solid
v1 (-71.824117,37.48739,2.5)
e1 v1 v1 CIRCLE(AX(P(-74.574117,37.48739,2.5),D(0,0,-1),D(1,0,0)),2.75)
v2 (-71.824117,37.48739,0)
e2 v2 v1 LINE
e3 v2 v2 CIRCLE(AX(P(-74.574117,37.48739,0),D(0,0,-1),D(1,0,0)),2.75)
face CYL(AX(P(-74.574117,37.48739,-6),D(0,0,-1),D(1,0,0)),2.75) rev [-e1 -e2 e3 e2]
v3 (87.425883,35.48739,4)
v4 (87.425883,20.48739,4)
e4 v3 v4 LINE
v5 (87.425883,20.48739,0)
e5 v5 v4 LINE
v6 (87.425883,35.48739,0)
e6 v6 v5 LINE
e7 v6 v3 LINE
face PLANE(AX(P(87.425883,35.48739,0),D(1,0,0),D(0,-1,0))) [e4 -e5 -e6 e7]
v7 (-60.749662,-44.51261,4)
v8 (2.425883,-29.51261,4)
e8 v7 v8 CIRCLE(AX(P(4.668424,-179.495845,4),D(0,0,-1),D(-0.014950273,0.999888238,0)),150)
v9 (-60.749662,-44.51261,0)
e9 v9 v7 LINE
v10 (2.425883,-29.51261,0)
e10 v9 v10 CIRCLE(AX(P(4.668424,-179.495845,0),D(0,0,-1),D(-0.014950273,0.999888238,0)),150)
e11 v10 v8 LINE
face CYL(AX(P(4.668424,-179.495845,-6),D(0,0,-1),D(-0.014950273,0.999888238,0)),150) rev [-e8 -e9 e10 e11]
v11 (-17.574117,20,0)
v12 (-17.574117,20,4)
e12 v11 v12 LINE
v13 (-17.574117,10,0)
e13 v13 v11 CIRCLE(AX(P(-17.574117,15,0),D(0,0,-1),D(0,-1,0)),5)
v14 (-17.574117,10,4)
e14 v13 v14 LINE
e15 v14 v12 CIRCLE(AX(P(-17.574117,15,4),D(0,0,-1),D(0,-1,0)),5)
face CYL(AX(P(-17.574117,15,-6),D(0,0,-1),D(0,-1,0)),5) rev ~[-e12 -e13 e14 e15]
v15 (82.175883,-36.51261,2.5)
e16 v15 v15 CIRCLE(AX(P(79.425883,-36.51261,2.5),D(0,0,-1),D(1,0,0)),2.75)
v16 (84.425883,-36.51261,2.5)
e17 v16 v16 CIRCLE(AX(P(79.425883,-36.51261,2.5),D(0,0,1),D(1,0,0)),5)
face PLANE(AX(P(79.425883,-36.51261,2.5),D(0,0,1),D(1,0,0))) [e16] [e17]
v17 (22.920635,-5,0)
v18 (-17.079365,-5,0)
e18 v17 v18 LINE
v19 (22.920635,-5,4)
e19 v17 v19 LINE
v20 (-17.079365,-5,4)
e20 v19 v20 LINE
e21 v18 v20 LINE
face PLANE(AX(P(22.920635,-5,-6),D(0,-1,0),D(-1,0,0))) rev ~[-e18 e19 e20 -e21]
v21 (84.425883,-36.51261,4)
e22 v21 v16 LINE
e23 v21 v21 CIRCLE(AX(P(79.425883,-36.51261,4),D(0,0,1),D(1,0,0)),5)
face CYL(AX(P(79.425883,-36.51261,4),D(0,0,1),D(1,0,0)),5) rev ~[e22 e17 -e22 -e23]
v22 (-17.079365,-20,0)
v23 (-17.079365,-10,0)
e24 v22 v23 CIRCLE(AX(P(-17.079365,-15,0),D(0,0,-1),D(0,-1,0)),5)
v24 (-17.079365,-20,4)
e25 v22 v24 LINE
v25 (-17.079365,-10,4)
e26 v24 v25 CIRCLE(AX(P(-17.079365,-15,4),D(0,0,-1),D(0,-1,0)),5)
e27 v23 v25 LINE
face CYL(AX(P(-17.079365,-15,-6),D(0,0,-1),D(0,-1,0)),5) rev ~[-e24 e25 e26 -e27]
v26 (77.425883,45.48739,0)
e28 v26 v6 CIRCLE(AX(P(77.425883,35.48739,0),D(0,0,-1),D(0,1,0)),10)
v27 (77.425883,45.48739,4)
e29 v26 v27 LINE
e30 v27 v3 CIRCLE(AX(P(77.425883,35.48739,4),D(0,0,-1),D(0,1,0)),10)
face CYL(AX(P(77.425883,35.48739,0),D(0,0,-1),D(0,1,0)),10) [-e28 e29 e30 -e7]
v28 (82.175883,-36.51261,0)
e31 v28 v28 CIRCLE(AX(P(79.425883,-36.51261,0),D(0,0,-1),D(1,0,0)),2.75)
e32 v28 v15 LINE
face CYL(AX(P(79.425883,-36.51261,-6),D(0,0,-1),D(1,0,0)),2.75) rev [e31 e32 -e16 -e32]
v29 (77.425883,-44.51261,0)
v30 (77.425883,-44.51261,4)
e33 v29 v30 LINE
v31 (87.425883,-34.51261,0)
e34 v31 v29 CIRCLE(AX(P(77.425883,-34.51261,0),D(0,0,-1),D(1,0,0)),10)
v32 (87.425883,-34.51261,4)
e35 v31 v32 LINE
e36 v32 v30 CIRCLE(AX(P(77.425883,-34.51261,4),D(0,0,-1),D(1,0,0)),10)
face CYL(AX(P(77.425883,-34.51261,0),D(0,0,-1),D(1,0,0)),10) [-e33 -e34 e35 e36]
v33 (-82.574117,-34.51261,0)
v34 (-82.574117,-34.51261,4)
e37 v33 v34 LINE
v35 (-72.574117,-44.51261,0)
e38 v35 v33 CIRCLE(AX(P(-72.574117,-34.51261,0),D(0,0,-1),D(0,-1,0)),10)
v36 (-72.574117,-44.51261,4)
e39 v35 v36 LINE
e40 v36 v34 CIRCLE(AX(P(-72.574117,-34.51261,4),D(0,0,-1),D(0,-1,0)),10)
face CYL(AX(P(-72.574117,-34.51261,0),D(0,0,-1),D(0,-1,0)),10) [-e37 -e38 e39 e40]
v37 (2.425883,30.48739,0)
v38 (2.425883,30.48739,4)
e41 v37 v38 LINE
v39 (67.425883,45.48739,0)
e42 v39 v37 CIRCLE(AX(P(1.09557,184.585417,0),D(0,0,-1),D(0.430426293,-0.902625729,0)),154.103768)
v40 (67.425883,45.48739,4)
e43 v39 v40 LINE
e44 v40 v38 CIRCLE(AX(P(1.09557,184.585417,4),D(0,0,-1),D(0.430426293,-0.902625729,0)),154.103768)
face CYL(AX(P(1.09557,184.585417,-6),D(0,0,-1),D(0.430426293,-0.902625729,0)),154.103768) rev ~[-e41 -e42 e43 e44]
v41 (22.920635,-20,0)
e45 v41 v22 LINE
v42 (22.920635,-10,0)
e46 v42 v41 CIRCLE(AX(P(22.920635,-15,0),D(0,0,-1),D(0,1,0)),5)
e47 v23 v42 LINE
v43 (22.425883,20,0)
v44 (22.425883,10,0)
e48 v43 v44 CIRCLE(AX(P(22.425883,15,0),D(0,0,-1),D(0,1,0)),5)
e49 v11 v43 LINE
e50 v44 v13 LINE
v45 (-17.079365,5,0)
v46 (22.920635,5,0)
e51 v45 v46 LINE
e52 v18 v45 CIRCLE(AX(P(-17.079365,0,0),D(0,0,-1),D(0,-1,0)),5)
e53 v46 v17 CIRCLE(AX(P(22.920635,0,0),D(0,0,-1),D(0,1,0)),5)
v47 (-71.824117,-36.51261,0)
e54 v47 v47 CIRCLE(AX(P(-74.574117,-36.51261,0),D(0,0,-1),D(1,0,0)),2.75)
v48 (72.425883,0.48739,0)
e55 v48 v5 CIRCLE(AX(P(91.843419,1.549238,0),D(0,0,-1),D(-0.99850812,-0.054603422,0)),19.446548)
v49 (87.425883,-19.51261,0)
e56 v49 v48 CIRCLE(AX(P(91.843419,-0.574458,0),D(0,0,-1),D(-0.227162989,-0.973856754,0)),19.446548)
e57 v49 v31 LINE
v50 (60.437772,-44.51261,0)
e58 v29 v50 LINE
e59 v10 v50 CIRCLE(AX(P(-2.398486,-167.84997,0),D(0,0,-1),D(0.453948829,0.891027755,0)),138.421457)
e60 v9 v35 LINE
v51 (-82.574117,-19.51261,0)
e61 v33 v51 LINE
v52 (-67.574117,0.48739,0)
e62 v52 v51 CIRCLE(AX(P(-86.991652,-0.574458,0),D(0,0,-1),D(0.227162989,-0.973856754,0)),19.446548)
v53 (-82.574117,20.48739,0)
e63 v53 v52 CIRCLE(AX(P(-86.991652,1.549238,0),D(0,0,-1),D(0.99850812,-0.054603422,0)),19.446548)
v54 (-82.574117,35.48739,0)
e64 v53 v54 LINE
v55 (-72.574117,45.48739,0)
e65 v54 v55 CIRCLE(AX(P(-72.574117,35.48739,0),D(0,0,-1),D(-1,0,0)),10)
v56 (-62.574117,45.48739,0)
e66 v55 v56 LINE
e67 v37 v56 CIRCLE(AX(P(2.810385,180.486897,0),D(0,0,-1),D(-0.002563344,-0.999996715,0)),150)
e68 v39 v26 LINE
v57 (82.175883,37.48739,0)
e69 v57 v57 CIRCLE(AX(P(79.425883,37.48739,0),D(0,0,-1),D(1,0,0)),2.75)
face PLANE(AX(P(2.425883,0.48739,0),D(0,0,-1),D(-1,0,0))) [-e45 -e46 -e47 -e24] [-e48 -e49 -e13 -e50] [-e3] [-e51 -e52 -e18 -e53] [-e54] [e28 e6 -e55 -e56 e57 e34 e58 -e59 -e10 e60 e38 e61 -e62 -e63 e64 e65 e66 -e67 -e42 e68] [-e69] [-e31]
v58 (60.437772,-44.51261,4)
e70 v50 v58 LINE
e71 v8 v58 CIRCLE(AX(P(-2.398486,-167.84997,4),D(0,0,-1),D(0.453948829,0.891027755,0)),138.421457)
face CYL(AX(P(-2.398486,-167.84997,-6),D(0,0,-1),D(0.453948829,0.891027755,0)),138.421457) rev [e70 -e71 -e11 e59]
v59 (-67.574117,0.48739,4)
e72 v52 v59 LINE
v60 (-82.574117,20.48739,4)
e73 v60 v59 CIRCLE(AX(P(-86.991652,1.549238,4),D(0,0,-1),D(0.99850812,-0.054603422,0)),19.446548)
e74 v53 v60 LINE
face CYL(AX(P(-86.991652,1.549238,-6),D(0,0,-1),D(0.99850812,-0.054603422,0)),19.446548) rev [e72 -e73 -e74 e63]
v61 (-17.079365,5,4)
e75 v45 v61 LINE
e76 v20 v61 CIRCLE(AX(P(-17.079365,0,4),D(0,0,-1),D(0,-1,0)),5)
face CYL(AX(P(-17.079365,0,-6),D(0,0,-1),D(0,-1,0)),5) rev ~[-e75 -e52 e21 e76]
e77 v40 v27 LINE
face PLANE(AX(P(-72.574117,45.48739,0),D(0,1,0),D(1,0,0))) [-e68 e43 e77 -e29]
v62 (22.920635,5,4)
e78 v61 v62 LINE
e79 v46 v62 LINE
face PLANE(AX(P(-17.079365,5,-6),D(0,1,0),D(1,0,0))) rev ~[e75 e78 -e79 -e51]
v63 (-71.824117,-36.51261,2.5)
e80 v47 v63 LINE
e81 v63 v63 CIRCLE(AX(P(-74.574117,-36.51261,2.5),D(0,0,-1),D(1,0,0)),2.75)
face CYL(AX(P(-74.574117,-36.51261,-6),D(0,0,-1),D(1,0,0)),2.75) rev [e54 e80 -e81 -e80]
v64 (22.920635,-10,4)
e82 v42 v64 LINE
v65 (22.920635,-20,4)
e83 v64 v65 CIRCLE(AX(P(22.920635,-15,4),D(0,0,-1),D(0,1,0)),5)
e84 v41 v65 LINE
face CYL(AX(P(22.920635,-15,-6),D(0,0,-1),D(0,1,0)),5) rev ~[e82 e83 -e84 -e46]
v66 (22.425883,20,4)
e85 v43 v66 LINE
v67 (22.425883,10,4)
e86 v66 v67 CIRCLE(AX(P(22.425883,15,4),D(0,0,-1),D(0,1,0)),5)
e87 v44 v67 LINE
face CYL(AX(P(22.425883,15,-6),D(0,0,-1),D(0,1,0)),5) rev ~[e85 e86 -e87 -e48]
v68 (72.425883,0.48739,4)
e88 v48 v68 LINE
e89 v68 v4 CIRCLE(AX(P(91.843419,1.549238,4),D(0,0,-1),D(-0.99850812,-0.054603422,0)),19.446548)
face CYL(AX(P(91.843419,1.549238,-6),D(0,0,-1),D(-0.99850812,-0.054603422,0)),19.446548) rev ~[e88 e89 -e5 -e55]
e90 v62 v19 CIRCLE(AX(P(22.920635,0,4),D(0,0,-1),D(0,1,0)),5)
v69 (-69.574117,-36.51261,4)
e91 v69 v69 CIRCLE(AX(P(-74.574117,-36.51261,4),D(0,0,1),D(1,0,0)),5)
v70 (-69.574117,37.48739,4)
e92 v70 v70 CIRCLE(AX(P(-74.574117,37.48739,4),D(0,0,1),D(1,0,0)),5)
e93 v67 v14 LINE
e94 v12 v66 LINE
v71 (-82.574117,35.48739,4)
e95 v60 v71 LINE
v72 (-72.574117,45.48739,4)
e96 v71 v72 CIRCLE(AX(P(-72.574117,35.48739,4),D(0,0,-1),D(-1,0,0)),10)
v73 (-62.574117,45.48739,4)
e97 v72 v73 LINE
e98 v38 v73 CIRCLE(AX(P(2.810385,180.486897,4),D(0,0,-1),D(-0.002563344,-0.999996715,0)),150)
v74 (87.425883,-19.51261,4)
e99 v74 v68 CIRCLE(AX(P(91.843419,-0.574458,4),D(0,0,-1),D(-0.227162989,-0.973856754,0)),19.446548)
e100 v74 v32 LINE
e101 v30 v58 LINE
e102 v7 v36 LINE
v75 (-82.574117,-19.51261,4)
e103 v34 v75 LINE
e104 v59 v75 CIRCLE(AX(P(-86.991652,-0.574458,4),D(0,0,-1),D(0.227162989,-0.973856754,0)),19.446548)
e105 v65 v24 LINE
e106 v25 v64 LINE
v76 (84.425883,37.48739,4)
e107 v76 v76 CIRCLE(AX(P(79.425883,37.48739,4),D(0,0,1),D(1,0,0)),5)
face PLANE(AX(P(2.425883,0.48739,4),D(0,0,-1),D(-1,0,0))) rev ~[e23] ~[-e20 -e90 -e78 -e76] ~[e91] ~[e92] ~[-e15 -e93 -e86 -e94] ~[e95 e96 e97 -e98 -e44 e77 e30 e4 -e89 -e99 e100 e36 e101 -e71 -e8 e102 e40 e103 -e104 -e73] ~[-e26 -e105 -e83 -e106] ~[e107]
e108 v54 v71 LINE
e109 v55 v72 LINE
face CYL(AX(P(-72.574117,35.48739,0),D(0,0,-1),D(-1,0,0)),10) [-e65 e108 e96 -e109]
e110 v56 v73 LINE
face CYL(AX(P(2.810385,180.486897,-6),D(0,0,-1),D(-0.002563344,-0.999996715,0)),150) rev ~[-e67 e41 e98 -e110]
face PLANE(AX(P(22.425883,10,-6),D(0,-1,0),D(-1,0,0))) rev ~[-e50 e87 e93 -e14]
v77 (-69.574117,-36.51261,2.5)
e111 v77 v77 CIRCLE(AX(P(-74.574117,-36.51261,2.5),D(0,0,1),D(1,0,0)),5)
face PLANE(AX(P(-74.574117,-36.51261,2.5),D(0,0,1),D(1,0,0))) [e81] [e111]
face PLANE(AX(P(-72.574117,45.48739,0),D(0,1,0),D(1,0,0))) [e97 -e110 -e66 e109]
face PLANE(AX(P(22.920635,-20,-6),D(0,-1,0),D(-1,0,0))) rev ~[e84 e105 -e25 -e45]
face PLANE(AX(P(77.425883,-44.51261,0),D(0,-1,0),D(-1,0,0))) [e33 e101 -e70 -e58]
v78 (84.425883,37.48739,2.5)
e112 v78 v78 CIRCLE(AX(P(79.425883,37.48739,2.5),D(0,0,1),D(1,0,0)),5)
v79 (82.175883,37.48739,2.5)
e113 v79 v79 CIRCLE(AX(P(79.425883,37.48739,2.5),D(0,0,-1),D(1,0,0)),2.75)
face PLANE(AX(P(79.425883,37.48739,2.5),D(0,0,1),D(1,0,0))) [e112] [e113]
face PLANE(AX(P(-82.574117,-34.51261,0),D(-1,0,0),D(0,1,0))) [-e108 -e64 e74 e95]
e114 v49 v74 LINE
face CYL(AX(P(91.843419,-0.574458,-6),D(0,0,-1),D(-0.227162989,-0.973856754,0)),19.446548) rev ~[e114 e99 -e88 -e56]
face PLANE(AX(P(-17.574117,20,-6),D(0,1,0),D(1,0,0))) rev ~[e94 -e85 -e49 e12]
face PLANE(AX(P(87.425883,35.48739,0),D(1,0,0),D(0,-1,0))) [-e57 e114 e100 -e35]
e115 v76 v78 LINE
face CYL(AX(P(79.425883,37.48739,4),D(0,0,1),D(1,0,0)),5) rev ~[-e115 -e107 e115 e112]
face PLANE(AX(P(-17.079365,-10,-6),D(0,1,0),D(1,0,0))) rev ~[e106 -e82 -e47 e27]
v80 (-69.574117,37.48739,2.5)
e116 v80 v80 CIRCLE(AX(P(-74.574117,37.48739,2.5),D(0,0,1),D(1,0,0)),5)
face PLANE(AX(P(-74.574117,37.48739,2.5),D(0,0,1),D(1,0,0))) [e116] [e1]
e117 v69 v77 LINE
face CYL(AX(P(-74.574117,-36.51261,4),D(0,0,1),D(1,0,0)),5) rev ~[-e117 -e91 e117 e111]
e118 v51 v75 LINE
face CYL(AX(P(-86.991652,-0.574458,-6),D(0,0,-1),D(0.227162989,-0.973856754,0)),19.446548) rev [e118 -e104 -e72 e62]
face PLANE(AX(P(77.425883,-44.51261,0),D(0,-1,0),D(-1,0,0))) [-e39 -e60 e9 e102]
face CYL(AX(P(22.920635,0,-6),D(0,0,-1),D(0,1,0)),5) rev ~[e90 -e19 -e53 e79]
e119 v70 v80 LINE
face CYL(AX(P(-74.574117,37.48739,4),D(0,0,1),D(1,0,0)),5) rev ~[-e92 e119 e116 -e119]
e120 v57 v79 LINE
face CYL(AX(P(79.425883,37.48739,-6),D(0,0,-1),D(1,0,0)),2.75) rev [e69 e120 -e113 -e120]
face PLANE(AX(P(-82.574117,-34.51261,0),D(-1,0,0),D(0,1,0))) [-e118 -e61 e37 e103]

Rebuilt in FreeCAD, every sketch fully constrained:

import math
import FreeCAD as App
import Part
import Sketcher
from FreeCAD import Vector

doc = App.newDocument("Part")
body = doc.addObject("PartDesign::Body", "Body")

# Sketch on XY plane
sketch1 = body.newObject("Sketcher::SketchObject", "Sketch")
sketch1.AttachmentSupport = (doc.getObject("XY_Plane"), [""])
sketch1.MapMode = "FlatFace"
sketch1.addGeometry([
    Part.LineSegment(Vector(77, 45, 0), Vector(-73, 45, 0)),  # 0
    Part.ArcOfCircle(Part.Circle(Vector(-73, 35, 0), Vector(0, 0, 1), 10), math.radians(90), math.radians(180)),  # 1
    Part.LineSegment(Vector(-83, 35, 0), Vector(-83, -35, 0)),  # 2
    Part.ArcOfCircle(Part.Circle(Vector(-73, -35, 0), Vector(0, 0, 1), 10), math.radians(180), math.radians(270)),  # 3
    Part.LineSegment(Vector(-73, -45, 0), Vector(77, -45, 0)),  # 4
    Part.ArcOfCircle(Part.Circle(Vector(77, -35, 0), Vector(0, 0, 1), 10), math.radians(-90), math.radians(0)),  # 5
    Part.LineSegment(Vector(87, -35, 0), Vector(87, 35, 0)),  # 6
    Part.ArcOfCircle(Part.Circle(Vector(77, 35, 0), Vector(0, 0, 1), 10), math.radians(0), math.radians(90)),  # 7
], False)
sketch1.addConstraint([
    Sketcher.Constraint("Tangent", 0, 2, 1, 1),
    Sketcher.Constraint("Tangent", 1, 2, 2, 1),
    Sketcher.Constraint("Tangent", 2, 2, 3, 1),
    Sketcher.Constraint("Tangent", 3, 2, 4, 1),
    Sketcher.Constraint("Tangent", 4, 2, 5, 1),
    Sketcher.Constraint("Tangent", 5, 2, 6, 1),
    Sketcher.Constraint("Tangent", 6, 2, 7, 1),
    Sketcher.Constraint("Tangent", 7, 2, 0, 1),
    Sketcher.Constraint("Horizontal", 0),
    Sketcher.Constraint("Vertical", 2),
    Sketcher.Constraint("Horizontal", 4),
    Sketcher.Constraint("Vertical", 6),
    Sketcher.Constraint("Equal", 1, 3),
    Sketcher.Constraint("Equal", 3, 5),
    Sketcher.Constraint("Equal", 5, 7),
    Sketcher.Constraint("Radius", 1, 10.0),
    Sketcher.Constraint("DistanceX", 0, 2, 0, 1, 150.0),
    Sketcher.Constraint("DistanceY", 2, 2, 2, 1, 70.0),
    Sketcher.Constraint("DistanceY", -1, 1, 1, 3, 35.48739),
    Sketcher.Constraint("DistanceX", 1, 3, -1, 1, 72.574117),
])
pad1 = body.newObject("PartDesign::Pad", "Pad")
pad1.Profile = sketch1
pad1.Length = 4

# Sketch on XY plane
sketch2 = body.newObject("Sketcher::SketchObject", "Sketch001")
sketch2.AttachmentSupport = (doc.getObject("XY_Plane"), [""])
sketch2.MapMode = "FlatFace"
sketch2.AttachmentOffset = App.Placement(Vector(0, 0, 4), App.Rotation())
sketch2.addGeometry([
    Part.Circle(Vector(-74.6, 37.5, 0), Vector(0, 0, 1), 2.8),  # 0
    Part.Circle(Vector(-74.6, -36.5, 0), Vector(0, 0, 1), 2.8),  # 1
    Part.Circle(Vector(79.4, 37.5, 0), Vector(0, 0, 1), 2.8),  # 2
    Part.Circle(Vector(79.4, -36.5, 0), Vector(0, 0, 1), 2.8),  # 3
    Part.LineSegment(Vector(-60.7, -44.5, 0), Vector(60.4, -44.5, 0)),  # 4
    Part.ArcOfCircle(Part.Circle(Vector(-2.4, -167.8, 0), Vector(0, 0, 1), 138.4), math.radians(63), math.radians(88)),  # 5
    Part.ArcOfCircle(Part.Circle(Vector(4.7, -179.5, 0), Vector(0, 0, 1), 150), math.radians(91), math.radians(116)),  # 6
    Part.LineSegment(Vector(67.4, 45.5, 0), Vector(-62.6, 45.5, 0)),  # 7
    Part.ArcOfCircle(Part.Circle(Vector(2.8, 180.5, 0), Vector(0, 0, 1), 150), math.radians(-116), math.radians(-90)),  # 8
    Part.ArcOfCircle(Part.Circle(Vector(1.1, 184.6, 0), Vector(0, 0, 1), 154.1), math.radians(-90), math.radians(-65)),  # 9
    Part.LineSegment(Vector(87.4, -19.5, 0), Vector(87.4, 20.5, 0)),  # 10
    Part.ArcOfCircle(Part.Circle(Vector(91.8, 1.5, 0), Vector(0, 0, 1), 19.4), math.radians(103), math.radians(183)),  # 11
    Part.ArcOfCircle(Part.Circle(Vector(91.8, -0.6, 0), Vector(0, 0, 1), 19.4), math.radians(177), math.radians(257)),  # 12
    Part.LineSegment(Vector(-82.6, 20.5, 0), Vector(-82.6, -19.5, 0)),  # 13
    Part.ArcOfCircle(Part.Circle(Vector(-87, -0.6, 0), Vector(0, 0, 1), 19.4), math.radians(-77), math.radians(3)),  # 14
    Part.ArcOfCircle(Part.Circle(Vector(-87, 1.5, 0), Vector(0, 0, 1), 19.4), math.radians(-3), math.radians(77)),  # 15
    Part.LineSegment(Vector(22.4, 20, 0), Vector(-17.6, 20, 0)),  # 16
    Part.ArcOfCircle(Part.Circle(Vector(-17.6, 15, 0), Vector(0, 0, 1), 5), math.radians(90), math.radians(270)),  # 17
    Part.LineSegment(Vector(-17.6, 10, 0), Vector(22.4, 10, 0)),  # 18
    Part.ArcOfCircle(Part.Circle(Vector(22.4, 15, 0), Vector(0, 0, 1), 5), math.radians(-90), math.radians(90)),  # 19
    Part.LineSegment(Vector(22.9, 5, 0), Vector(-17.1, 5, 0)),  # 20
    Part.ArcOfCircle(Part.Circle(Vector(-17.1, 0, 0), Vector(0, 0, 1), 5), math.radians(90), math.radians(270)),  # 21
    Part.LineSegment(Vector(-17.1, -5, 0), Vector(22.9, -5, 0)),  # 22
    Part.ArcOfCircle(Part.Circle(Vector(22.9, 0, 0), Vector(0, 0, 1), 5), math.radians(-90), math.radians(90)),  # 23
    Part.LineSegment(Vector(22.9, -10, 0), Vector(-17.1, -10, 0)),  # 24
    Part.ArcOfCircle(Part.Circle(Vector(-17.1, -15, 0), Vector(0, 0, 1), 5), math.radians(90), math.radians(270)),  # 25
    Part.LineSegment(Vector(-17.1, -20, 0), Vector(22.9, -20, 0)),  # 26
    Part.ArcOfCircle(Part.Circle(Vector(22.9, -15, 0), Vector(0, 0, 1), 5), math.radians(-90), math.radians(90)),  # 27
], False)
sketch2.addConstraint([
    Sketcher.Constraint("Coincident", 4, 2, 5, 1),
    Sketcher.Constraint("Coincident", 5, 2, 6, 1),
    Sketcher.Constraint("Coincident", 6, 2, 4, 1),
    Sketcher.Constraint("Coincident", 7, 2, 8, 1),
    Sketcher.Constraint("Coincident", 8, 2, 9, 1),
    Sketcher.Constraint("Coincident", 9, 2, 7, 1),
    Sketcher.Constraint("Coincident", 10, 2, 11, 1),
    Sketcher.Constraint("Coincident", 11, 2, 12, 1),
    Sketcher.Constraint("Coincident", 12, 2, 10, 1),
    Sketcher.Constraint("Coincident", 13, 2, 14, 1),
    Sketcher.Constraint("Coincident", 14, 2, 15, 1),
    Sketcher.Constraint("Coincident", 15, 2, 13, 1),
    Sketcher.Constraint("Tangent", 16, 2, 17, 1),
    Sketcher.Constraint("Tangent", 17, 2, 18, 1),
    Sketcher.Constraint("Tangent", 18, 2, 19, 1),
    Sketcher.Constraint("Tangent", 19, 2, 16, 1),
    Sketcher.Constraint("Tangent", 20, 2, 21, 1),
    Sketcher.Constraint("Tangent", 21, 2, 22, 1),
    Sketcher.Constraint("Tangent", 22, 2, 23, 1),
    Sketcher.Constraint("Tangent", 23, 2, 20, 1),
    Sketcher.Constraint("Tangent", 24, 2, 25, 1),
    Sketcher.Constraint("Tangent", 25, 2, 26, 1),
    Sketcher.Constraint("Tangent", 26, 2, 27, 1),
    Sketcher.Constraint("Tangent", 27, 2, 24, 1),
    Sketcher.Constraint("Horizontal", 4),
    Sketcher.Constraint("Horizontal", 7),
    Sketcher.Constraint("Vertical", 10),
    Sketcher.Constraint("Vertical", 13),
    Sketcher.Constraint("Horizontal", 16),
    Sketcher.Constraint("Horizontal", 18),
    Sketcher.Constraint("Horizontal", 20),
    Sketcher.Constraint("Horizontal", 22),
    Sketcher.Constraint("Horizontal", 24),
    Sketcher.Constraint("Horizontal", 26),
    Sketcher.Constraint("Equal", 0, 1),
    Sketcher.Constraint("Equal", 1, 2),
    Sketcher.Constraint("Equal", 2, 3),
    Sketcher.Constraint("Equal", 6, 8),
    Sketcher.Constraint("Equal", 11, 12),
    Sketcher.Constraint("Equal", 12, 14),
    Sketcher.Constraint("Equal", 14, 15),
    Sketcher.Constraint("Equal", 19, 21),
    Sketcher.Constraint("Equal", 23, 25),
    Sketcher.Constraint("PointOnObject", 21, 3, -1),
    Sketcher.Constraint("Horizontal", 0, 3, 2, 3),
    Sketcher.Constraint("Horizontal", 1, 3, 3, 3),
    Sketcher.Constraint("Horizontal", 12, 3, 14, 3),
    Sketcher.Constraint("Horizontal", 11, 3, 15, 3),
    Sketcher.Constraint("Horizontal", 12, 2, 13, 2),
    Sketcher.Constraint("Horizontal", 11, 2, 14, 2),
    Sketcher.Constraint("Vertical", 0, 3, 1, 3),
    Sketcher.Constraint("Vertical", 2, 3, 3, 3),
    Sketcher.Constraint("Vertical", 11, 3, 12, 3),
    Sketcher.Constraint("Vertical", 21, 3, 25, 3),
    Sketcher.Constraint("Vertical", 23, 3, 27, 3),
    Sketcher.Constraint("Vertical", 5, 2, 8, 2),
    Sketcher.Constraint("Equal", 18, 20),
    Sketcher.Constraint("Equal", 26, 10),
    Sketcher.Constraint("Radius", 6, 150.0),
    Sketcher.Constraint("Radius", 17, 5.0),
    Sketcher.Constraint("Diameter", 0, 5.5),
    Sketcher.Constraint("DistanceX", 7, 2, 7, 1, 130.0),
    Sketcher.Constraint("DistanceX", 16, 2, 16, 1, 40.0),
    Sketcher.Constraint("DistanceY", -1, 1, 17, 3, 15.0),
    Sketcher.Constraint("DistanceY", 25, 3, -1, 1, 15.0),
    Sketcher.Constraint("DistanceY", 1, 3, 0, 3, 74.0),
    Sketcher.Constraint("DistanceX", 0, 3, 2, 3, 154.0),
    Sketcher.Constraint("DistanceX", 0, 3, 17, 3, 57.0),
    Sketcher.Constraint("DistanceY", 4, 2, 3, 3, 8.0),
    Sketcher.Constraint("DistanceX", 5, 2, 19, 3, 20.0),
    Sketcher.Constraint("DistanceX", 0, 3, 7, 2, 12.0),
    Sketcher.Constraint("DistanceY", 0, 3, 7, 2, 8.0),
    Sketcher.Constraint("DistanceX", 2, 3, 10, 2, 8.0),
    Sketcher.Constraint("DistanceY", 10, 2, 2, 3, 17.0),
    Sketcher.Constraint("DistanceX", 11, 2, 10, 2, 15.0),
    Sketcher.Constraint("DistanceX", 13, 2, 1, 3, 8.0),
    Sketcher.Constraint("Radius", 9, 154.103768),
    Sketcher.Constraint("Radius", 5, 138.421457),
    Sketcher.Constraint("Radius", 11, 19.446548),
    Sketcher.Constraint("DistanceX", 8, 3, 2, 3, 76.615498),
    Sketcher.Constraint("DistanceX", 4, 1, 4, 2, 121.187434),
    Sketcher.Constraint("DistanceY", -1, 1, 0, 3, 37.48739),
    Sketcher.Constraint("DistanceY", 5, 3, -1, 1, 167.84997),
    Sketcher.Constraint("DistanceX", -1, 1, 9, 3, 1.09557),
    Sketcher.Constraint("DistanceY", 5, 2, -1, 1, 29.51261),
    Sketcher.Constraint("DistanceX", 17, 3, 21, 3, 0.494752),
])
pocket1 = body.newObject("PartDesign::Pocket", "Pocket")
pocket1.Profile = sketch2
pocket1.Type = "ThroughAll"
pocket1.Midplane = True

# Sketch on XY plane
sketch3 = body.newObject("Sketcher::SketchObject", "Sketch002")
sketch3.AttachmentSupport = (doc.getObject("XY_Plane"), [""])
sketch3.MapMode = "FlatFace"
sketch3.AttachmentOffset = App.Placement(Vector(0, 0, 4), App.Rotation())
sketch3.addGeometry([
    Part.Circle(Vector(-75, 37, 0), Vector(0, 0, 1), 5),
    Part.Circle(Vector(79, 37, 0), Vector(0, 0, 1), 5),
    Part.Circle(Vector(79, -37, 0), Vector(0, 0, 1), 5),
    Part.Circle(Vector(-75, -37, 0), Vector(0, 0, 1), 5),
], False)
sketch3.addConstraint([
    Sketcher.Constraint("Equal", 0, 1),
    Sketcher.Constraint("Equal", 1, 2),
    Sketcher.Constraint("Equal", 2, 3),
    Sketcher.Constraint("Horizontal", 0, 3, 1, 3),
    Sketcher.Constraint("Horizontal", 2, 3, 3, 3),
    Sketcher.Constraint("Vertical", 1, 3, 2, 3),
    Sketcher.Constraint("Vertical", 0, 3, 3, 3),
    Sketcher.Constraint("Diameter", 0, 10.0),
    Sketcher.Constraint("DistanceX", 0, 3, 1, 3, 154.0),
    Sketcher.Constraint("DistanceY", 2, 3, 1, 3, 74.0),
    Sketcher.Constraint("DistanceY", -1, 1, 0, 3, 37.48739),
    Sketcher.Constraint("DistanceX", 0, 3, -1, 1, 74.574117),
])
pocket2 = body.newObject("PartDesign::Pocket", "Pocket001")
pocket2.Profile = sketch3
pocket2.Length = 1.5

doc.recompute()
